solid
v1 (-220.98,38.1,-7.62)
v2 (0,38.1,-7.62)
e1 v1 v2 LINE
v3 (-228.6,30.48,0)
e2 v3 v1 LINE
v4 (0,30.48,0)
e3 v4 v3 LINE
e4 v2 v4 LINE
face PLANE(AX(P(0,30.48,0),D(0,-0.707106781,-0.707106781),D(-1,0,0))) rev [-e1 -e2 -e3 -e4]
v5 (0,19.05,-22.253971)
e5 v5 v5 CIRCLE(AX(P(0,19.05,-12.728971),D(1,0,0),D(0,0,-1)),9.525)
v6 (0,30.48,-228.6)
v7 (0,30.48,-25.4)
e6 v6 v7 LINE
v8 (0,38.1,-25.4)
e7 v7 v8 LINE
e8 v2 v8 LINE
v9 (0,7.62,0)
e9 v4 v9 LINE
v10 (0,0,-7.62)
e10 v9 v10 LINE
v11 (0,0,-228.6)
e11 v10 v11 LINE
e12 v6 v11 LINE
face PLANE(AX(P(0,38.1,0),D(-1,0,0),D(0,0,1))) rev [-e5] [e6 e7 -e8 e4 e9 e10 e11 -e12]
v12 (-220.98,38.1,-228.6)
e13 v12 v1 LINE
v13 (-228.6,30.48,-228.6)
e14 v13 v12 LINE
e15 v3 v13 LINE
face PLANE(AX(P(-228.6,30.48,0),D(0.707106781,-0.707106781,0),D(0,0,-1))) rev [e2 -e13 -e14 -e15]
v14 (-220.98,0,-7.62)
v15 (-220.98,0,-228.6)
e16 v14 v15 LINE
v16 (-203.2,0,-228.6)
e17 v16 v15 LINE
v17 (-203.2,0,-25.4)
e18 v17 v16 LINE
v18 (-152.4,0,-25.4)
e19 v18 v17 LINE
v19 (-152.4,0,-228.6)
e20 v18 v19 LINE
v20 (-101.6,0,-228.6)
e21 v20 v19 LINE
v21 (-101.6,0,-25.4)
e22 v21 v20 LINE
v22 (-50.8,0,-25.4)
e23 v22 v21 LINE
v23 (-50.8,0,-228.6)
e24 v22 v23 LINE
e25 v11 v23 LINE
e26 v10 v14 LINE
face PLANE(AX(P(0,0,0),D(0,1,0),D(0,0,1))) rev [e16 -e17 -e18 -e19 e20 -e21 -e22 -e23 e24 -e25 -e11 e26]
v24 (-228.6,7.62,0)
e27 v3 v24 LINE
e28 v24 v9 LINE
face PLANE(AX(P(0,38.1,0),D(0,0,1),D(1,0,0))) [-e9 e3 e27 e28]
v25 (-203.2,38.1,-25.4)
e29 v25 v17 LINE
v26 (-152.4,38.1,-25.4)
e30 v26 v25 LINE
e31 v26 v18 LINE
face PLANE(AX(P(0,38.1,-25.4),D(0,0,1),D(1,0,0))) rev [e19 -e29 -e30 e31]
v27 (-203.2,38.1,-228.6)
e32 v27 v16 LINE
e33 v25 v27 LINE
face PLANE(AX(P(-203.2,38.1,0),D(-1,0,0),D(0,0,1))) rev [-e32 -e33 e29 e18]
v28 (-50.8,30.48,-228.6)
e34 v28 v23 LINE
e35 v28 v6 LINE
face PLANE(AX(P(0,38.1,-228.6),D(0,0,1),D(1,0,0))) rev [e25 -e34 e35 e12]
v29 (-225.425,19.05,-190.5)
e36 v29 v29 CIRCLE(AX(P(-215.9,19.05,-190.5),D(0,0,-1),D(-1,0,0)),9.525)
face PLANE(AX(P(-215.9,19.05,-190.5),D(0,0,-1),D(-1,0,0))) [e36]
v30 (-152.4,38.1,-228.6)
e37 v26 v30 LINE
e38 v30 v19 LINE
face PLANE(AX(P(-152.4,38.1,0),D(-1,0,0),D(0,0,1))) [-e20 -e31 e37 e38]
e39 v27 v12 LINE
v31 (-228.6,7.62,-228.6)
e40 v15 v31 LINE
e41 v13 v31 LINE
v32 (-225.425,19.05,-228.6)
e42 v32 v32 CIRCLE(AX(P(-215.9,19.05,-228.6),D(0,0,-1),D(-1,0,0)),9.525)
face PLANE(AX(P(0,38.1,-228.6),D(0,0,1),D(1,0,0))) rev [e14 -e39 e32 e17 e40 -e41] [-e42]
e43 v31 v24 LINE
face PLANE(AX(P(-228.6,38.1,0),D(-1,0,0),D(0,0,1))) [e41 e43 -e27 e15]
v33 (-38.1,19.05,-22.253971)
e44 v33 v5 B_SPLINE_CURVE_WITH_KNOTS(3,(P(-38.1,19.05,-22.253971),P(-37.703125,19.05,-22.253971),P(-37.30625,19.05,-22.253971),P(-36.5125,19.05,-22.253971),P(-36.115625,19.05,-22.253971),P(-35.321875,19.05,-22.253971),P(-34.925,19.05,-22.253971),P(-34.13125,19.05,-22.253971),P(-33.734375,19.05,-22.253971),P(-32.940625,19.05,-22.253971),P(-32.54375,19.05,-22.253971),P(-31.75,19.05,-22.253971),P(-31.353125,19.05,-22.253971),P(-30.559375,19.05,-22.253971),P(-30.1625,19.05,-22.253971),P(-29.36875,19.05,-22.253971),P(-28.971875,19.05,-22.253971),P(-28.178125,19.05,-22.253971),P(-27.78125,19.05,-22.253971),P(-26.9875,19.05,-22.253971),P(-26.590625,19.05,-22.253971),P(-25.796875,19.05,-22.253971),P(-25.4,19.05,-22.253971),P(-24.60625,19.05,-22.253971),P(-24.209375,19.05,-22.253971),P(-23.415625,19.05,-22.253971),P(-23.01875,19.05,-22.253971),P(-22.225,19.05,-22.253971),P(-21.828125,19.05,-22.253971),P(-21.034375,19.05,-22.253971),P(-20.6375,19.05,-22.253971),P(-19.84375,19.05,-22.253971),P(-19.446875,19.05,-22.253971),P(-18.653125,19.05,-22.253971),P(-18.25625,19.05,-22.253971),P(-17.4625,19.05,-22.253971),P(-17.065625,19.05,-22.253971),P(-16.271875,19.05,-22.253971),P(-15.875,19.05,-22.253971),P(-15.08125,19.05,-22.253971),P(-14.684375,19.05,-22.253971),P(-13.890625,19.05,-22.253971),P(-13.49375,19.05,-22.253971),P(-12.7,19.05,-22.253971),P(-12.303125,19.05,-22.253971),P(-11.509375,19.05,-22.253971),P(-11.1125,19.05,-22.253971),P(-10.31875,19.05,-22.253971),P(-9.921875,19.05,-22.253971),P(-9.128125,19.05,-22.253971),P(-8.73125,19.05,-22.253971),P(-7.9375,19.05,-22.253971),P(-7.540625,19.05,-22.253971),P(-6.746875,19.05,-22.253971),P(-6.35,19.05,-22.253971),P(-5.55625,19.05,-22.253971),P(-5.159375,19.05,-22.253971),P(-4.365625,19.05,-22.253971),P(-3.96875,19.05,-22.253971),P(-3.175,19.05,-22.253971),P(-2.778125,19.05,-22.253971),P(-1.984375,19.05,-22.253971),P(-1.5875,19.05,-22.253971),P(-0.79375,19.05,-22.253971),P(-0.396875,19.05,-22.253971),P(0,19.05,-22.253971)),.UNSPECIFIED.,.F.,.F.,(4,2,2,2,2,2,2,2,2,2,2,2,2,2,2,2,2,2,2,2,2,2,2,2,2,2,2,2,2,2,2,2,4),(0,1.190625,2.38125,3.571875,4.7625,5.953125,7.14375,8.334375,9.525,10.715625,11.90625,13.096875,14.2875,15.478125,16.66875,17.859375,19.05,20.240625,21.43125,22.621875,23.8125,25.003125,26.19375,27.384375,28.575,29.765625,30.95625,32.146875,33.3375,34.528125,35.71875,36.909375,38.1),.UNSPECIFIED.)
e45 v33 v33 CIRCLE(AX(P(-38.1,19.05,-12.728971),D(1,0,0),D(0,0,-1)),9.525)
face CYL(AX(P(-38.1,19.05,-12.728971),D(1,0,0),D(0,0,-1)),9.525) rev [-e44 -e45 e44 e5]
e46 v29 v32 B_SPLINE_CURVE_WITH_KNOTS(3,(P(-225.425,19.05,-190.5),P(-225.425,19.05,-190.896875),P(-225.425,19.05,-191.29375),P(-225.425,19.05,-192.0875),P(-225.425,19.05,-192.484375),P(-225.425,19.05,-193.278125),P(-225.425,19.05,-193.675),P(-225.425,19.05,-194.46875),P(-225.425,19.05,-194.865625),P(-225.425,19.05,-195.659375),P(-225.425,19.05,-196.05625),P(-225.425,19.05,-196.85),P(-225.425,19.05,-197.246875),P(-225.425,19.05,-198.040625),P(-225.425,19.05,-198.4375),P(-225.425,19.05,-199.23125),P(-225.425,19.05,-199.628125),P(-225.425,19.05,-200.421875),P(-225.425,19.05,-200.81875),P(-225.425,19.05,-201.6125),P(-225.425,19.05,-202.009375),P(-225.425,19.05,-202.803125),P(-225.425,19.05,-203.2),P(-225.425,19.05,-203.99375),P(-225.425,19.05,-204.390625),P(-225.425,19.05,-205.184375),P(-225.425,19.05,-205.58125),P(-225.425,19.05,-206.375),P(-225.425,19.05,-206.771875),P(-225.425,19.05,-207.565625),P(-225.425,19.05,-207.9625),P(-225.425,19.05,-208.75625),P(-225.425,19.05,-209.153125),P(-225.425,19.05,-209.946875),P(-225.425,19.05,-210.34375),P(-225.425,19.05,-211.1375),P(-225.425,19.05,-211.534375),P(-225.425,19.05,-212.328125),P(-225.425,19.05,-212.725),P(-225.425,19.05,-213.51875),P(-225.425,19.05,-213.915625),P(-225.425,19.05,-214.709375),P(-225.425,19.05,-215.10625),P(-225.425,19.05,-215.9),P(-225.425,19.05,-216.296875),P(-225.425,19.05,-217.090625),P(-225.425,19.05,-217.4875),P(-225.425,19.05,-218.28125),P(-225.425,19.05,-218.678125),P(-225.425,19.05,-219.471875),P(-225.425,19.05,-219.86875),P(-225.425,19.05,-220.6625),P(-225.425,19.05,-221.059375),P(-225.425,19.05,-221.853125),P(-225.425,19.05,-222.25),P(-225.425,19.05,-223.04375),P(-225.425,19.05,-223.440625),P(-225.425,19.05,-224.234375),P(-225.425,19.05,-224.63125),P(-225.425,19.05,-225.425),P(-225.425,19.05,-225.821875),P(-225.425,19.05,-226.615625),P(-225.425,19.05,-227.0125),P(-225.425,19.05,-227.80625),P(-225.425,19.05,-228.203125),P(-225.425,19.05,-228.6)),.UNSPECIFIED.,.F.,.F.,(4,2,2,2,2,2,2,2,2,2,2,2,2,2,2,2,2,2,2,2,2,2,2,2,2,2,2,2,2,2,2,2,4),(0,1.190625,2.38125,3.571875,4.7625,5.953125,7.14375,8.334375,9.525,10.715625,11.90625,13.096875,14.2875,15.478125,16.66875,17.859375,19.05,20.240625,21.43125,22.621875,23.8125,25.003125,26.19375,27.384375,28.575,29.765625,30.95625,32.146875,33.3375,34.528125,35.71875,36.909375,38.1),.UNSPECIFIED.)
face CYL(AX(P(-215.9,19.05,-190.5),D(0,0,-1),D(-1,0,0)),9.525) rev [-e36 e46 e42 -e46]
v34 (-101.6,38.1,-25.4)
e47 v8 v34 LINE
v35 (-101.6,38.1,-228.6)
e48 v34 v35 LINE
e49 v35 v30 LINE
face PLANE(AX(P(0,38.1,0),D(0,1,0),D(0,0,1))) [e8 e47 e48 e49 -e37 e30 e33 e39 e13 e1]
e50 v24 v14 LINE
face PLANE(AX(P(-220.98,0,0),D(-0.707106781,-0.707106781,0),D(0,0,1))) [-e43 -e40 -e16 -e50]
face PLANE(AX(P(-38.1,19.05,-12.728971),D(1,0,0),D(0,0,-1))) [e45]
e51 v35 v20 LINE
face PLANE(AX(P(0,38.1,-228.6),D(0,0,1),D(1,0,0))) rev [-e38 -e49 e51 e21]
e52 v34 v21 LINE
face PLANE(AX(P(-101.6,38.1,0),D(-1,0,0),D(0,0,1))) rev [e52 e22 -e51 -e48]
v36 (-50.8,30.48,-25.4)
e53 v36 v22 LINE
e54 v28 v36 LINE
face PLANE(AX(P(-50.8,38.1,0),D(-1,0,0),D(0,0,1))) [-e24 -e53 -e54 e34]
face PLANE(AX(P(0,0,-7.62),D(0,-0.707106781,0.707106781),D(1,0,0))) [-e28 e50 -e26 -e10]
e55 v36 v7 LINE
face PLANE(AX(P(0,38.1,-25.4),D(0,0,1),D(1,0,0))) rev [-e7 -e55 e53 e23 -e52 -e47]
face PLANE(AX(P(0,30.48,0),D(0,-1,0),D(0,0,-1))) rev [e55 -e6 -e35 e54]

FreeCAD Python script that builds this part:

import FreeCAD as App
import Part
import Sketcher

V = App.Vector
Q = App.Units.Quantity


def edges_at(feature, points):
    """Names of the edges that pass closest to the given points."""
    edges = feature.Shape.Edges
    near = lambda p: min(range(len(edges)), key=lambda i: edges[i].distToShape(Part.Vertex(*p))[0])
    return sorted({f"Edge{near(p) + 1}" for p in points})


def add_polygon(sketch, points):
    """Adds a closed chain of lines whose ends are joined by coincident constraints."""
    first, n = sketch.GeometryCount, len(points)
    for a, b in zip(points, points[1:] + points[:1]):
        sketch.addGeometry(Part.LineSegment(App.Vector(*a, 0), App.Vector(*b, 0)), False)
    for i in range(n):
        sketch.addConstraint(Sketcher.Constraint("Coincident", first + i, 2, first + (i + 1) % n, 1))

doc = App.newDocument("Part")
body = doc.addObject("PartDesign::Body", "Body")

# Sketch on XZ plane
sketch1 = body.newObject("Sketcher::SketchObject", "Sketch")
sketch1.AttachmentSupport = (doc.getObject("XZ_Plane"), [""])
sketch1.MapMode = "FlatFace"
add_polygon(sketch1, [(0, 0), (0, -229), (-51, -229), (-51, -25), (-102, -25), (-102, -229), (-152, -229), (-152, -25), (-203, -25), (-203, -229), (-229, -229), (-229, 0)])  # lines 0-11
sketch1.addConstraint(Sketcher.Constraint("Vertical", 0))
sketch1.addConstraint(Sketcher.Constraint("Horizontal", 1))
sketch1.addConstraint(Sketcher.Constraint("Vertical", 2))
sketch1.addConstraint(Sketcher.Constraint("Horizontal", 3))
sketch1.addConstraint(Sketcher.Constraint("Vertical", 4))
sketch1.addConstraint(Sketcher.Constraint("Horizontal", 5))
sketch1.addConstraint(Sketcher.Constraint("Vertical", 6))
sketch1.addConstraint(Sketcher.Constraint("Horizontal", 7))
sketch1.addConstraint(Sketcher.Constraint("Vertical", 8))
sketch1.addConstraint(Sketcher.Constraint("Horizontal", 9))
sketch1.addConstraint(Sketcher.Constraint("Vertical", 10))
sketch1.addConstraint(Sketcher.Constraint("Horizontal", 11))
sketch1.addConstraint(Sketcher.Constraint("Coincident", 11, 2, -1, 1))
sketch1.addConstraint(Sketcher.Constraint("Horizontal", 1, 2, 4, 2))
sketch1.addConstraint(Sketcher.Constraint("Horizontal", 3, 2, 6, 2))
sketch1.addConstraint(Sketcher.Constraint("Horizontal", 5, 2, 8, 2))
sketch1.addConstraint(Sketcher.Constraint("Equal", 1, 3))
sketch1.addConstraint(Sketcher.Constraint("Equal", 3, 5))
sketch1.addConstraint(Sketcher.Constraint("Equal", 5, 7))
sketch1.addConstraint(Sketcher.Constraint("Equal", 11, 0))
sketch1.addConstraint(Sketcher.Constraint("DistanceX", 1, 2, 1, 1, Q("2 in")))
sketch1.addConstraint(Sketcher.Constraint("DistanceX", 9, 2, 9, 1, Q("1 in")))
sketch1.addConstraint(Sketcher.Constraint("DistanceY", 2, 1, 2, 2, Q("8 in")))
pad1 = body.newObject("PartDesign::Pad", "Pad")
pad1.Profile = sketch1
pad1.Length = Q("1.5 in")
pad1.Reversed = True

# Sketch on XY plane
sketch2 = body.newObject("Sketcher::SketchObject", "Sketch001")
sketch2.AttachmentSupport = (doc.getObject("XY_Plane"), [""])
sketch2.MapMode = "FlatFace"
sketch2.AttachmentOffset = App.Placement(V(0, 0, -9 * 25.4), App.Rotation())
sketch2.addGeometry(Part.Circle(V(-216, 19, 0), V(0, 0, 1), 10), False)
sketch2.addConstraint(Sketcher.Constraint("Diameter", 0, Q("0.75 in")))
sketch2.addConstraint(Sketcher.Constraint("DistanceX", 0, 3, -1, 1, Q("8.5 in")))
sketch2.addConstraint(Sketcher.Constraint("DistanceY", -1, 1, 0, 3, Q("0.75 in")))
pocket1 = body.newObject("PartDesign::Pocket", "Pocket")
pocket1.Profile = sketch2
pocket1.Length = Q("1.5 in")
pocket1.Reversed = True

# Sketch on YZ plane
sketch3 = body.newObject("Sketcher::SketchObject", "Sketch002")
sketch3.AttachmentSupport = (doc.getObject("YZ_Plane"), [""])
sketch3.MapMode = "FlatFace"
sketch3.addGeometry(Part.Circle(V(19, -13, 0), V(0, 0, 1), 10), False)
sketch3.addConstraint(Sketcher.Constraint("Diameter", 0, Q("0.75 in")))
sketch3.addConstraint(Sketcher.Constraint("DistanceX", -1, 1, 0, 3, Q("0.75 in")))
sketch3.addConstraint(Sketcher.Constraint("DistanceY", 0, 3, -1, 1, 12.728971))
pocket2 = body.newObject("PartDesign::Pocket", "Pocket001")
pocket2.Profile = sketch3
pocket2.Length = Q("1.5 in")

# Sketch on XZ plane
sketch4 = body.newObject("Sketcher::SketchObject", "Sketch003")
sketch4.AttachmentSupport = (doc.getObject("XZ_Plane"), [""])
sketch4.MapMode = "FlatFace"
sketch4.AttachmentOffset = App.Placement(V(0, 0, -1.5 * 25.4), App.Rotation())
add_polygon(sketch4, [(-76, -279), (-76, -25), (178, -25), (178, -279)])  # lines 0-3
sketch4.addConstraint(Sketcher.Constraint("Vertical", 0))
sketch4.addConstraint(Sketcher.Constraint("Horizontal", 1))
sketch4.addConstraint(Sketcher.Constraint("Vertical", 2))
sketch4.addConstraint(Sketcher.Constraint("Horizontal", 3))
sketch4.addConstraint(Sketcher.Constraint("DistanceX", 1, 1, 1, 2, Q("10 in")))
sketch4.addConstraint(Sketcher.Constraint("DistanceX", 0, 2, -1, 1, Q("3 in")))
sketch4.addConstraint(Sketcher.Constraint("DistanceY", 0, 2, -1, 1, Q("1 in")))
sketch4.addConstraint(Sketcher.Constraint("DistanceY", 0, 1, 0, 2, 254.028971))
pocket3 = body.newObject("PartDesign::Pocket", "Pocket002")
pocket3.Profile = sketch4
pocket3.Length = Q("0.3 in")
pocket3.Reversed = True
doc.recompute()

chamfer = body.newObject("PartDesign::Chamfer", "Chamfer")
chamfer.Base = (pocket3, edges_at(pocket3, [
    (-114.3, 0, 0),
    (-228.6, 0, -114.3),
    (-228.6, 38.1, -114.3),
    (-114.3, 38.1, 0),
]))
chamfer.Size = Q("0.3 in")

doc.recompute()
